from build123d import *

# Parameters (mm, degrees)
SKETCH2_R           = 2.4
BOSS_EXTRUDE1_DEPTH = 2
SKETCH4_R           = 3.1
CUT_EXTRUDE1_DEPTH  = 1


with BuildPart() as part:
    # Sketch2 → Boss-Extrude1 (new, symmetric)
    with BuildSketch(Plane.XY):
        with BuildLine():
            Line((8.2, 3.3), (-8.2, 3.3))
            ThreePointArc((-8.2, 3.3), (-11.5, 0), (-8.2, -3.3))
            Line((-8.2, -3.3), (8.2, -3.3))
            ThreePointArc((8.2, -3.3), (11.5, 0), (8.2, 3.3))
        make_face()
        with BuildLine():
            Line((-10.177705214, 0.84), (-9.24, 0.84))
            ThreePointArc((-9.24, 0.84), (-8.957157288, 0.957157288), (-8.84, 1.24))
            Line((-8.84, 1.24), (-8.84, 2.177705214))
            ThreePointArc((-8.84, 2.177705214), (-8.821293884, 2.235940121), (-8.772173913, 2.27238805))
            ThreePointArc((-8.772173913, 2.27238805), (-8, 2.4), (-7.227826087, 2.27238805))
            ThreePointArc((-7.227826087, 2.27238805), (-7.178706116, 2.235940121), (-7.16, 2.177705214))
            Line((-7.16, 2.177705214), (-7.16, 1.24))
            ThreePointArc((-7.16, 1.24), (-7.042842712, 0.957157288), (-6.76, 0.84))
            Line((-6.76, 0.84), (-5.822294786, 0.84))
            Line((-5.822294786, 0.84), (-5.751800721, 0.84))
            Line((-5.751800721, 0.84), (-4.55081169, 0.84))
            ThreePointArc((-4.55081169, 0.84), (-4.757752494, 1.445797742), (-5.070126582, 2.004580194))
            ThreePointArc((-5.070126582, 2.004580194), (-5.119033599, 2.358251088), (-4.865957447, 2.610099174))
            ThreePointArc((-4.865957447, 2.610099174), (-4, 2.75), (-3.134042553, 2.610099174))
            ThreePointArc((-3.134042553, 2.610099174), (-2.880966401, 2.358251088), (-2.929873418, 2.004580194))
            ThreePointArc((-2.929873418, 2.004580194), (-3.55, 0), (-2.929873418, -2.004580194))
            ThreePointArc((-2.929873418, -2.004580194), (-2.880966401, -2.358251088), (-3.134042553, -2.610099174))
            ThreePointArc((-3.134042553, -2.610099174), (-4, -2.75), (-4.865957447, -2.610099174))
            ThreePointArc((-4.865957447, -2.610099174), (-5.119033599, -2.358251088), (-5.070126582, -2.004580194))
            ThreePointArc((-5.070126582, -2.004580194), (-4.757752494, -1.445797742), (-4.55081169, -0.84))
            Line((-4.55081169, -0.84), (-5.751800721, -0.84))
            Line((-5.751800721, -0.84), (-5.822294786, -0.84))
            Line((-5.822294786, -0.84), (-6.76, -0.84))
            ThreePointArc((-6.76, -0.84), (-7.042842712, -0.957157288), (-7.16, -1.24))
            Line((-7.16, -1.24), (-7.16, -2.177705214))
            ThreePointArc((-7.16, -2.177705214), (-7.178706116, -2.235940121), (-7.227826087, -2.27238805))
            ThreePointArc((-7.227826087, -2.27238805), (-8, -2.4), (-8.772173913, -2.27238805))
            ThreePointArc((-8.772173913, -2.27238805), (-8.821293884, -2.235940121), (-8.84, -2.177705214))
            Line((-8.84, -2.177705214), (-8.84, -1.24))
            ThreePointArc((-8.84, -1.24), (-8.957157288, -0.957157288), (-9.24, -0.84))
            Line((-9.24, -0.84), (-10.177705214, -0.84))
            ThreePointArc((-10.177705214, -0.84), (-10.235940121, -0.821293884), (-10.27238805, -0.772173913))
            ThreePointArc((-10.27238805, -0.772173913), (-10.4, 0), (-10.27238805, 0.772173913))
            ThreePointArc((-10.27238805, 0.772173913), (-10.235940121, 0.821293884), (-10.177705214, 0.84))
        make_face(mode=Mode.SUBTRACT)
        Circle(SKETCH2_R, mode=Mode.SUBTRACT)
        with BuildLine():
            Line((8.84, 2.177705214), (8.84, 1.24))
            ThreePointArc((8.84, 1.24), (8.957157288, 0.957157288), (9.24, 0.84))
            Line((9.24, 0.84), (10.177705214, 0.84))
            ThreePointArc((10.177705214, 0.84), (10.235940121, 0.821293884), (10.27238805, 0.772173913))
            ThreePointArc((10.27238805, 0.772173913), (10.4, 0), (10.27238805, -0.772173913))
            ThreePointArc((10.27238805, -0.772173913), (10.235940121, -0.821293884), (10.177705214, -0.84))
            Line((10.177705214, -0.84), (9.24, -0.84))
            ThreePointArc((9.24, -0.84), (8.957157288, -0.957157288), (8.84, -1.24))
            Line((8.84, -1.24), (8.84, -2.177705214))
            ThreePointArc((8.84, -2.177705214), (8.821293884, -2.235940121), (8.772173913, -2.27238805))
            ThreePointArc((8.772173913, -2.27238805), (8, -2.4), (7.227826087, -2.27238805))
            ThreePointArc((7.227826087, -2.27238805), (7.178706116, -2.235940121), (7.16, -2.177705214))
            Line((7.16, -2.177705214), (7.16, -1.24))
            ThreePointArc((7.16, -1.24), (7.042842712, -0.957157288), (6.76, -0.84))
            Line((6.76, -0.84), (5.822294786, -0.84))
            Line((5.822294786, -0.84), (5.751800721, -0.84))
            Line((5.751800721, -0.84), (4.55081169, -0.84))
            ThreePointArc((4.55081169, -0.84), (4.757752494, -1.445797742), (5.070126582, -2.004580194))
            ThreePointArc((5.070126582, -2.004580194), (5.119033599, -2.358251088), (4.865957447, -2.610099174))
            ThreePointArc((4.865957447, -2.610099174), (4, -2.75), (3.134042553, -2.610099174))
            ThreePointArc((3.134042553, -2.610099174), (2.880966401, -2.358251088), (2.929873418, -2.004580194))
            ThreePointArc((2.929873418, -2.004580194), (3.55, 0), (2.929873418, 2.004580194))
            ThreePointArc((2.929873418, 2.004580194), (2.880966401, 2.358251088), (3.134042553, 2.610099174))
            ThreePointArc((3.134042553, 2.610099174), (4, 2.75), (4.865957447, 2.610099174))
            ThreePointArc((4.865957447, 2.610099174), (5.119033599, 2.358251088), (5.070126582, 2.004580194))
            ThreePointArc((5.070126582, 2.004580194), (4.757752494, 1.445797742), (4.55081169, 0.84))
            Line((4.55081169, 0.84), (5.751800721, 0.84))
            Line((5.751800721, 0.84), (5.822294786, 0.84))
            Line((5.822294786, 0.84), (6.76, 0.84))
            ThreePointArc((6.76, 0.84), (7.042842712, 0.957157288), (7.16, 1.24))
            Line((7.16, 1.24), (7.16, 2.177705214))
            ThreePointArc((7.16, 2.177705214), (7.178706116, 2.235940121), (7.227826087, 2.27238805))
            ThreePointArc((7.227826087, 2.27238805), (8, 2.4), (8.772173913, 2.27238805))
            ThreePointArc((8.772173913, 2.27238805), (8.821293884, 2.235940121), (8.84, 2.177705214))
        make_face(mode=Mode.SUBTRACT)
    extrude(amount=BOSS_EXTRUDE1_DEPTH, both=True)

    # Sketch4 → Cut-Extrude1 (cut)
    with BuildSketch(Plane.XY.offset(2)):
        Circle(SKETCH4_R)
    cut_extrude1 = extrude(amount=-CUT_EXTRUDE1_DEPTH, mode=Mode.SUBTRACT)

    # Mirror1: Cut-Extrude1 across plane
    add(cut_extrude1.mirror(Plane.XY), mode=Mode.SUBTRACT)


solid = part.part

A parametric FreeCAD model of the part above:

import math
import FreeCAD as App
import Part
import Sketcher
from FreeCAD import Vector

doc = App.newDocument("Part")
body = doc.addObject("PartDesign::Body", "Body")

# Sketch on XY plane
sketch1 = body.newObject("Sketcher::SketchObject", "Sketch")
sketch1.AttachmentSupport = (doc.getObject("XY_Plane"), [""])
sketch1.MapMode = "FlatFace"
sketch1.addGeometry([
    Part.LineSegment(Vector(8.2, 3.3, 0), Vector(-8.2, 3.3, 0)),  # 0
    Part.ArcOfCircle(Part.Circle(Vector(-8.2, 0, 0), Vector(0, 0, 1), 3.3), math.radians(90), math.radians(270)),  # 1
    Part.LineSegment(Vector(-8.2, -3.3, 0), Vector(8.2, -3.3, 0)),  # 2
    Part.ArcOfCircle(Part.Circle(Vector(8.2, 0, 0), Vector(0, 0, 1), 3.3), math.radians(-90), math.radians(90)),  # 3
    Part.ArcOfCircle(Part.Circle(Vector(-10.177705, 0.74, 0), Vector(0, 0, 1), 0.1), math.radians(90.000001), math.radians(161.231866)),  # 4
    Part.LineSegment(Vector(-10.177705, 0.84, 0), Vector(-9.24, 0.84, 0)),  # 5
    Part.ArcOfCircle(Part.Circle(Vector(-9.24, 1.24, 0), Vector(0, 0, 1), 0.4), math.radians(-90), math.radians(0)),  # 6
    Part.LineSegment(Vector(-8.84, 1.24, 0), Vector(-8.84, 2.177705, 0)),  # 7
    Part.ArcOfCircle(Part.Circle(Vector(-8.74, 2.177705, 0), Vector(0, 0, 1), 0.1), math.radians(108.768134), math.radians(179.999999)),  # 8
    Part.ArcOfCircle(Part.Circle(Vector(-8, 0, 0), Vector(0, 0, 1), 2.4), math.radians(71.231867), math.radians(108.768133)),  # 9
    Part.ArcOfCircle(Part.Circle(Vector(-7.26, 2.177705, 0), Vector(0, 0, 1), 0.1), math.radians(0.000001), math.radians(71.231866)),  # 10
    Part.LineSegment(Vector(-7.16, 2.177705, 0), Vector(-7.16, 1.24, 0)),  # 11
    Part.ArcOfCircle(Part.Circle(Vector(-6.76, 1.24, 0), Vector(0, 0, 1), 0.4), math.radians(-180), math.radians(-90)),  # 12
    Part.LineSegment(Vector(-6.76, 0.84, 0), Vector(-4.550812, 0.84, 0)),  # 13
    Part.ArcOfCircle(Part.Circle(Vector(-8, 0, 0), Vector(0, 0, 1), 3.55), math.radians(13.687119), math.radians(34.379412)),  # 14
    Part.ArcOfCircle(Part.Circle(Vector(-4.74, 2.230448, 0), Vector(0, 0, 1), 0.4), math.radians(108.354392), math.radians(214.379412)),  # 15
    Part.ArcOfCircle(Part.Circle(Vector(-4, 0, 0), Vector(0, 0, 1), 2.75), math.radians(71.645608), math.radians(108.354392)),  # 16
    Part.ArcOfCircle(Part.Circle(Vector(-3.26, 2.230448, 0), Vector(0, 0, 1), 0.4), math.radians(-34.379412), math.radians(71.645608)),  # 17
    Part.ArcOfCircle(Part.Circle(Vector(0, 0, 0), Vector(0, 0, 1), 3.55), math.radians(145.620588), math.radians(214.379412)),  # 18
    Part.ArcOfCircle(Part.Circle(Vector(-3.26, -2.230448, 0), Vector(0, 0, 1), 0.4), math.radians(-71.645608), math.radians(34.379412)),  # 19
    Part.ArcOfCircle(Part.Circle(Vector(-4, 0, 0), Vector(0, 0, 1), 2.75), math.radians(-108.354392), math.radians(-71.645608)),  # 20
    Part.ArcOfCircle(Part.Circle(Vector(-4.74, -2.230448, 0), Vector(0, 0, 1), 0.4), math.radians(145.620588), math.radians(251.645608)),  # 21
    Part.ArcOfCircle(Part.Circle(Vector(-8, 0, 0), Vector(0, 0, 1), 3.55), math.radians(-34.379412), math.radians(-13.687119)),  # 22
    Part.LineSegment(Vector(-4.550812, -0.84, 0), Vector(-6.76, -0.84, 0)),  # 23
    Part.ArcOfCircle(Part.Circle(Vector(-6.76, -1.24, 0), Vector(0, 0, 1), 0.4), math.radians(90), math.radians(180)),  # 24
    Part.LineSegment(Vector(-7.16, -1.24, 0), Vector(-7.16, -2.177705, 0)),  # 25
    Part.ArcOfCircle(Part.Circle(Vector(-7.26, -2.177705, 0), Vector(0, 0, 1), 0.1), math.radians(-71.231866), math.radians(-0.000001)),  # 26
    Part.ArcOfCircle(Part.Circle(Vector(-8, 0, 0), Vector(0, 0, 1), 2.4), math.radians(-108.768133), math.radians(-71.231867)),  # 27
    Part.ArcOfCircle(Part.Circle(Vector(-8.74, -2.177705, 0), Vector(0, 0, 1), 0.1), math.radians(-179.999999), math.radians(-108.768134)),  # 28
    Part.LineSegment(Vector(-8.84, -2.177705, 0), Vector(-8.84, -1.24, 0)),  # 29
    Part.ArcOfCircle(Part.Circle(Vector(-9.24, -1.24, 0), Vector(0, 0, 1), 0.4), math.radians(0), math.radians(90)),  # 30
    Part.LineSegment(Vector(-9.24, -0.84, 0), Vector(-10.177705, -0.84, 0)),  # 31
    Part.ArcOfCircle(Part.Circle(Vector(-10.177705, -0.74, 0), Vector(0, 0, 1), 0.1), math.radians(-161.231866), math.radians(-90.000001)),  # 32
    Part.ArcOfCircle(Part.Circle(Vector(-8, 0, 0), Vector(0, 0, 1), 2.4), math.radians(161.231867), math.radians(198.768133)),  # 33
    Part.Circle(Vector(0, 0, 0), Vector(0, 0, 1), 2.4),  # 34
    Part.ArcOfCircle(Part.Circle(Vector(8.74, 2.177705, 0), Vector(0, 0, 1), 0.1), math.radians(0.000001), math.radians(71.231866)),  # 35
    Part.LineSegment(Vector(8.84, 2.177705, 0), Vector(8.84, 1.24, 0)),  # 36
    Part.ArcOfCircle(Part.Circle(Vector(9.24, 1.24, 0), Vector(0, 0, 1), 0.4), math.radians(-180), math.radians(-90)),  # 37
    Part.LineSegment(Vector(9.24, 0.84, 0), Vector(10.177705, 0.84, 0)),  # 38
    Part.ArcOfCircle(Part.Circle(Vector(10.177705, 0.74, 0), Vector(0, 0, 1), 0.1), math.radians(18.768134), math.radians(89.999999)),  # 39
    Part.ArcOfCircle(Part.Circle(Vector(8, 0, 0), Vector(0, 0, 1), 2.4), math.radians(-18.768133), math.radians(18.768133)),  # 40
    Part.ArcOfCircle(Part.Circle(Vector(10.177705, -0.74, 0), Vector(0, 0, 1), 0.1), math.radians(-89.999999), math.radians(-18.768134)),  # 41
    Part.LineSegment(Vector(10.177705, -0.84, 0), Vector(9.24, -0.84, 0)),  # 42
    Part.ArcOfCircle(Part.Circle(Vector(9.24, -1.24, 0), Vector(0, 0, 1), 0.4), math.radians(90), math.radians(180)),  # 43
    Part.LineSegment(Vector(8.84, -1.24, 0), Vector(8.84, -2.177705, 0)),  # 44
    Part.ArcOfCircle(Part.Circle(Vector(8.74, -2.177705, 0), Vector(0, 0, 1), 0.1), math.radians(-71.231866), math.radians(-0.000001)),  # 45
    Part.ArcOfCircle(Part.Circle(Vector(8, 0, 0), Vector(0, 0, 1), 2.4), math.radians(-108.768133), math.radians(-71.231867)),  # 46
    Part.ArcOfCircle(Part.Circle(Vector(7.26, -2.177705, 0), Vector(0, 0, 1), 0.1), math.radians(-179.999999), math.radians(-108.768134)),  # 47
    Part.LineSegment(Vector(7.16, -2.177705, 0), Vector(7.16, -1.24, 0)),  # 48
    Part.ArcOfCircle(Part.Circle(Vector(6.76, -1.24, 0), Vector(0, 0, 1), 0.4), math.radians(0), math.radians(90)),  # 49
    Part.LineSegment(Vector(6.76, -0.84, 0), Vector(4.550812, -0.84, 0)),  # 50
    Part.ArcOfCircle(Part.Circle(Vector(8, 0, 0), Vector(0, 0, 1), 3.55), math.radians(-166.312881), math.radians(-145.620588)),  # 51
    Part.ArcOfCircle(Part.Circle(Vector(4.74, -2.230448, 0), Vector(0, 0, 1), 0.4), math.radians(-71.645608), math.radians(34.379412)),  # 52
    Part.ArcOfCircle(Part.Circle(Vector(4, 0, 0), Vector(0, 0, 1), 2.75), math.radians(-108.354392), math.radians(-71.645608)),  # 53
    Part.ArcOfCircle(Part.Circle(Vector(3.26, -2.230448, 0), Vector(0, 0, 1), 0.4), math.radians(145.620588), math.radians(251.645608)),  # 54
    Part.ArcOfCircle(Part.Circle(Vector(0, 0, 0), Vector(0, 0, 1), 3.55), math.radians(-34.379412), math.radians(34.379412)),  # 55
    Part.ArcOfCircle(Part.Circle(Vector(3.26, 2.230448, 0), Vector(0, 0, 1), 0.4), math.radians(108.354392), math.radians(214.379412)),  # 56
    Part.ArcOfCircle(Part.Circle(Vector(4, 0, 0), Vector(0, 0, 1), 2.75), math.radians(71.645608), math.radians(108.354392)),  # 57
    Part.ArcOfCircle(Part.Circle(Vector(4.74, 2.230448, 0), Vector(0, 0, 1), 0.4), math.radians(-34.379412), math.radians(71.645608)),  # 58
    Part.ArcOfCircle(Part.Circle(Vector(8, 0, 0), Vector(0, 0, 1), 3.55), math.radians(145.620588), math.radians(166.312881)),  # 59
    Part.LineSegment(Vector(4.550812, 0.84, 0), Vector(6.76, 0.84, 0)),  # 60
    Part.ArcOfCircle(Part.Circle(Vector(6.76, 1.24, 0), Vector(0, 0, 1), 0.4), math.radians(-90), math.radians(0)),  # 61
    Part.LineSegment(Vector(7.16, 1.24, 0), Vector(7.16, 2.177705, 0)),  # 62
    Part.ArcOfCircle(Part.Circle(Vector(7.26, 2.177705, 0), Vector(0, 0, 1), 0.1), math.radians(108.768134), math.radians(179.999999)),  # 63
    Part.ArcOfCircle(Part.Circle(Vector(8, 0, 0), Vector(0, 0, 1), 2.4), math.radians(71.231867), math.radians(108.768133)),  # 64
], False)
sketch1.addConstraint([
    Sketcher.Constraint("Tangent", 0, 2, 1, 1),
    Sketcher.Constraint("Tangent", 1, 2, 2, 1),
    Sketcher.Constraint("Tangent", 2, 2, 3, 1),
    Sketcher.Constraint("Tangent", 3, 2, 0, 1),
    Sketcher.Constraint("Tangent", 4, 1, 5, 1),
    Sketcher.Constraint("Tangent", 5, 2, 6, 1),
    Sketcher.Constraint("Tangent", 6, 2, 7, 1),
    Sketcher.Constraint("Tangent", 7, 2, 8, 2),
    Sketcher.Constraint("Tangent", 8, 1, 9, 2),
    Sketcher.Constraint("Tangent", 9, 1, 10, 2),
    Sketcher.Constraint("Tangent", 10, 1, 11, 1),
    Sketcher.Constraint("Tangent", 11, 2, 12, 1),
    Sketcher.Constraint("Tangent", 12, 2, 13, 1),
    Sketcher.Constraint("Coincident", 13, 2, 14, 1),
    Sketcher.Constraint("Tangent", 14, 2, 15, 2),
    Sketcher.Constraint("Tangent", 15, 1, 16, 2),
    Sketcher.Constraint("Tangent", 16, 1, 17, 2),
    Sketcher.Constraint("Tangent", 17, 1, 18, 1),
    Sketcher.Constraint("Tangent", 18, 2, 19, 2),
    Sketcher.Constraint("Tangent", 19, 1, 20, 2),
    Sketcher.Constraint("Tangent", 20, 1, 21, 2),
    Sketcher.Constraint("Tangent", 21, 1, 22, 1),
    Sketcher.Constraint("Coincident", 22, 2, 23, 1),
    Sketcher.Constraint("Tangent", 23, 2, 24, 1),
    Sketcher.Constraint("Tangent", 24, 2, 25, 1),
    Sketcher.Constraint("Tangent", 25, 2, 26, 2),
    Sketcher.Constraint("Tangent", 26, 1, 27, 2),
    Sketcher.Constraint("Tangent", 27, 1, 28, 2),
    Sketcher.Constraint("Tangent", 28, 1, 29, 1),
    Sketcher.Constraint("Tangent", 29, 2, 30, 1),
    Sketcher.Constraint("Tangent", 30, 2, 31, 1),
    Sketcher.Constraint("Tangent", 31, 2, 32, 2),
    Sketcher.Constraint("Tangent", 32, 1, 33, 2),
    Sketcher.Constraint("Tangent", 33, 1, 4, 2),
    Sketcher.Constraint("Tangent", 35, 1, 36, 1),
    Sketcher.Constraint("Tangent", 36, 2, 37, 1),
    Sketcher.Constraint("Tangent", 37, 2, 38, 1),
    Sketcher.Constraint("Tangent", 38, 2, 39, 2),
    Sketcher.Constraint("Tangent", 39, 1, 40, 2),
    Sketcher.Constraint("Tangent", 40, 1, 41, 2),
    Sketcher.Constraint("Tangent", 41, 1, 42, 1),
    Sketcher.Constraint("Tangent", 42, 2, 43, 1),
    Sketcher.Constraint("Tangent", 43, 2, 44, 1),
    Sketcher.Constraint("Tangent", 44, 2, 45, 2),
    Sketcher.Constraint("Tangent", 45, 1, 46, 2),
    Sketcher.Constraint("Tangent", 46, 1, 47, 2),
    Sketcher.Constraint("Tangent", 47, 1, 48, 1),
    Sketcher.Constraint("Tangent", 48, 2, 49, 1),
    Sketcher.Constraint("Tangent", 49, 2, 50, 1),
    Sketcher.Constraint("Coincident", 50, 2, 51, 1),
    Sketcher.Constraint("Tangent", 51, 2, 52, 2),
    Sketcher.Constraint("Tangent", 52, 1, 53, 2),
    Sketcher.Constraint("Tangent", 53, 1, 54, 2),
    Sketcher.Constraint("Tangent", 54, 1, 55, 1),
    Sketcher.Constraint("Tangent", 55, 2, 56, 2),
    Sketcher.Constraint("Tangent", 56, 1, 57, 2),
    Sketcher.Constraint("Tangent", 57, 1, 58, 2),
    Sketcher.Constraint("Tangent", 58, 1, 59, 1),
    Sketcher.Constraint("Coincident", 59, 2, 60, 1),
    Sketcher.Constraint("Tangent", 60, 2, 61, 1),
    Sketcher.Constraint("Tangent", 61, 2, 62, 1),
    Sketcher.Constraint("Tangent", 62, 2, 63, 2),
    Sketcher.Constraint("Tangent", 63, 1, 64, 2),
    Sketcher.Constraint("Tangent", 64, 1, 35, 2),
    Sketcher.Constraint("Horizontal", 0),
    Sketcher.Constraint("Horizontal", 2),
    Sketcher.Constraint("Horizontal", 5),
    Sketcher.Constraint("Vertical", 7),
    Sketcher.Constraint("Vertical", 11),
    Sketcher.Constraint("Horizontal", 13),
    Sketcher.Constraint("Horizontal", 23),
    Sketcher.Constraint("Vertical", 25),
    Sketcher.Constraint("Vertical", 29),
    Sketcher.Constraint("Horizontal", 31),
    Sketcher.Constraint("Vertical", 36),
    Sketcher.Constraint("Horizontal", 38),
    Sketcher.Constraint("Horizontal", 42),
    Sketcher.Constraint("Vertical", 44),
    Sketcher.Constraint("Vertical", 48),
    Sketcher.Constraint("Horizontal", 50),
    Sketcher.Constraint("Horizontal", 60),
    Sketcher.Constraint("Vertical", 62),
    Sketcher.Constraint("Coincident", 18, 3, -1, 1),
    Sketcher.Constraint("Coincident", 34, 3, -1, 1),
    Sketcher.Constraint("Coincident", 55, 3, -1, 1),
    Sketcher.Constraint("Coincident", 14, 3, 9, 3),
    Sketcher.Constraint("Coincident", 20, 3, 16, 3),
    Sketcher.Constraint("Coincident", 22, 3, 9, 3),
    Sketcher.Constraint("Coincident", 27, 3, 9, 3),
    Sketcher.Constraint("Coincident", 33, 3, 9, 3),
    Sketcher.Constraint("Coincident", 46, 3, 40, 3),
    Sketcher.Constraint("Coincident", 51, 3, 40, 3),
    Sketcher.Constraint("Coincident", 57, 3, 53, 3),
    Sketcher.Constraint("Coincident", 59, 3, 40, 3),
    Sketcher.Constraint("Coincident", 64, 3, 40, 3),
    Sketcher.Constraint("Equal", 4, 8),
    Sketcher.Constraint("Equal", 8, 10),
    Sketcher.Constraint("Equal", 6, 12),
    Sketcher.Constraint("Equal", 12, 15),
    Sketcher.Constraint("Equal", 15, 17),
    Sketcher.Constraint("Equal", 14, 18),
    Sketcher.Constraint("Equal", 17, 19),
    Sketcher.Constraint("Equal", 16, 20),
    Sketcher.Constraint("Equal", 19, 21),
    Sketcher.Constraint("Equal", 18, 22),
    Sketcher.Constraint("Equal", 21, 24),
    Sketcher.Constraint("Equal", 10, 26),
    Sketcher.Constraint("Equal", 9, 27),
    Sketcher.Constraint("Equal", 26, 28),
    Sketcher.Constraint("Equal", 24, 30),
    Sketcher.Constraint("Equal", 28, 32),
    Sketcher.Constraint("Equal", 27, 33),
    Sketcher.Constraint("Equal", 33, 34),
    Sketcher.Constraint("Equal", 32, 35),
    Sketcher.Constraint("Equal", 30, 37),
    Sketcher.Constraint("Equal", 35, 39),
    Sketcher.Constraint("Equal", 34, 40),
    Sketcher.Constraint("Equal", 39, 41),
    Sketcher.Constraint("Equal", 37, 43),
    Sketcher.Constraint("Equal", 41, 45),
    Sketcher.Constraint("Equal", 40, 46),
    Sketcher.Constraint("Equal", 45, 47),
    Sketcher.Constraint("Equal", 43, 49),
    Sketcher.Constraint("Equal", 22, 51),
    Sketcher.Constraint("Equal", 49, 52),
    Sketcher.Constraint("Equal", 20, 53),
    Sketcher.Constraint("Equal", 52, 54),
    Sketcher.Constraint("Equal", 51, 55),
    Sketcher.Constraint("Equal", 54, 56),
    Sketcher.Constraint("Equal", 53, 57),
    Sketcher.Constraint("Equal", 56, 58),
    Sketcher.Constraint("Equal", 55, 59),
    Sketcher.Constraint("Equal", 58, 61),
    Sketcher.Constraint("Equal", 47, 63),
    Sketcher.Constraint("Equal", 46, 64),
    Sketcher.Constraint("Symmetric", 1, 3, 3, 3, -1, 1),
    Sketcher.Constraint("Symmetric", 28, 3, 35, 3, -1, 1),
    Sketcher.Constraint("Symmetric", 32, 3, 39, 3, -1, 1),
    Sketcher.Constraint("Symmetric", 6, 3, 43, 3, -1, 1),
    Sketcher.Constraint("Symmetric", 12, 3, 49, 3, -1, 1),
    Sketcher.Constraint("Symmetric", 16, 3, 53, 3, -1, 1),
    Sketcher.Constraint("Symmetric", 24, 3, 61, 3, -1, 1),
    Sketcher.Constraint("Symmetric", 8, 3, 35, 3, -2),
    Sketcher.Constraint("Symmetric", 24, 3, 49, 3, -2),
    Sketcher.Constraint("PointOnObject", 16, 3, -1),
    Sketcher.Constraint("Horizontal", 8, 3, 10, 3),
    Sketcher.Constraint("Horizontal", 6, 3, 12, 3),
    Sketcher.Constraint("Horizontal", 15, 3, 17, 3),
    Sketcher.Constraint("Horizontal", 24, 3, 30, 3),
    Sketcher.Constraint("Equal", 42, 7),
    Sketcher.Constraint("Diameter", 34, 4.8),
    Sketcher.Constraint("Radius", 1, 3.3),
    Sketcher.Constraint("Radius", 4, 0.1),
    Sketcher.Constraint("Radius", 6, 0.4),
    Sketcher.Constraint("Radius", 14, 3.55),
    Sketcher.Constraint("Radius", 16, 2.75),
    Sketcher.Constraint("DistanceX", 0, 2, 0, 1, 16.4),
    Sketcher.Constraint("DistanceX", 9, 3, -1, 1, 8.0),
    Sketcher.Constraint("DistanceY", -1, 1, 4, 3, 0.74),
])
pad1 = body.newObject("PartDesign::Pad", "Pad")
pad1.Profile = sketch1
pad1.Length = 4
pad1.Midplane = True

# Sketch on XY plane
sketch2 = body.newObject("Sketcher::SketchObject", "Sketch001")
sketch2.AttachmentSupport = (doc.getObject("XY_Plane"), [""])
sketch2.MapMode = "FlatFace"
sketch2.AttachmentOffset = App.Placement(Vector(0, 0, 2), App.Rotation())
sketch2.addGeometry(Part.Circle(Vector(0, 0, 0), Vector(0, 0, 1), 3.1), False)
sketch2.addConstraint([
    Sketcher.Constraint("Coincident", 0, 3, -1, 1),
    Sketcher.Constraint("Diameter", 0, 6.2),
])
pocket1 = body.newObject("PartDesign::Pocket", "Pocket")
pocket1.Profile = sketch2
pocket1.Length = 1
doc.recompute()

mirrored = body.newObject("PartDesign::Mirrored", "Mirrored")
mirrored.Originals = [pocket1]
mirrored.MirrorPlane = (doc.getObject("XY_Plane"), [""])
body.Tip = mirrored

doc.recompute()
